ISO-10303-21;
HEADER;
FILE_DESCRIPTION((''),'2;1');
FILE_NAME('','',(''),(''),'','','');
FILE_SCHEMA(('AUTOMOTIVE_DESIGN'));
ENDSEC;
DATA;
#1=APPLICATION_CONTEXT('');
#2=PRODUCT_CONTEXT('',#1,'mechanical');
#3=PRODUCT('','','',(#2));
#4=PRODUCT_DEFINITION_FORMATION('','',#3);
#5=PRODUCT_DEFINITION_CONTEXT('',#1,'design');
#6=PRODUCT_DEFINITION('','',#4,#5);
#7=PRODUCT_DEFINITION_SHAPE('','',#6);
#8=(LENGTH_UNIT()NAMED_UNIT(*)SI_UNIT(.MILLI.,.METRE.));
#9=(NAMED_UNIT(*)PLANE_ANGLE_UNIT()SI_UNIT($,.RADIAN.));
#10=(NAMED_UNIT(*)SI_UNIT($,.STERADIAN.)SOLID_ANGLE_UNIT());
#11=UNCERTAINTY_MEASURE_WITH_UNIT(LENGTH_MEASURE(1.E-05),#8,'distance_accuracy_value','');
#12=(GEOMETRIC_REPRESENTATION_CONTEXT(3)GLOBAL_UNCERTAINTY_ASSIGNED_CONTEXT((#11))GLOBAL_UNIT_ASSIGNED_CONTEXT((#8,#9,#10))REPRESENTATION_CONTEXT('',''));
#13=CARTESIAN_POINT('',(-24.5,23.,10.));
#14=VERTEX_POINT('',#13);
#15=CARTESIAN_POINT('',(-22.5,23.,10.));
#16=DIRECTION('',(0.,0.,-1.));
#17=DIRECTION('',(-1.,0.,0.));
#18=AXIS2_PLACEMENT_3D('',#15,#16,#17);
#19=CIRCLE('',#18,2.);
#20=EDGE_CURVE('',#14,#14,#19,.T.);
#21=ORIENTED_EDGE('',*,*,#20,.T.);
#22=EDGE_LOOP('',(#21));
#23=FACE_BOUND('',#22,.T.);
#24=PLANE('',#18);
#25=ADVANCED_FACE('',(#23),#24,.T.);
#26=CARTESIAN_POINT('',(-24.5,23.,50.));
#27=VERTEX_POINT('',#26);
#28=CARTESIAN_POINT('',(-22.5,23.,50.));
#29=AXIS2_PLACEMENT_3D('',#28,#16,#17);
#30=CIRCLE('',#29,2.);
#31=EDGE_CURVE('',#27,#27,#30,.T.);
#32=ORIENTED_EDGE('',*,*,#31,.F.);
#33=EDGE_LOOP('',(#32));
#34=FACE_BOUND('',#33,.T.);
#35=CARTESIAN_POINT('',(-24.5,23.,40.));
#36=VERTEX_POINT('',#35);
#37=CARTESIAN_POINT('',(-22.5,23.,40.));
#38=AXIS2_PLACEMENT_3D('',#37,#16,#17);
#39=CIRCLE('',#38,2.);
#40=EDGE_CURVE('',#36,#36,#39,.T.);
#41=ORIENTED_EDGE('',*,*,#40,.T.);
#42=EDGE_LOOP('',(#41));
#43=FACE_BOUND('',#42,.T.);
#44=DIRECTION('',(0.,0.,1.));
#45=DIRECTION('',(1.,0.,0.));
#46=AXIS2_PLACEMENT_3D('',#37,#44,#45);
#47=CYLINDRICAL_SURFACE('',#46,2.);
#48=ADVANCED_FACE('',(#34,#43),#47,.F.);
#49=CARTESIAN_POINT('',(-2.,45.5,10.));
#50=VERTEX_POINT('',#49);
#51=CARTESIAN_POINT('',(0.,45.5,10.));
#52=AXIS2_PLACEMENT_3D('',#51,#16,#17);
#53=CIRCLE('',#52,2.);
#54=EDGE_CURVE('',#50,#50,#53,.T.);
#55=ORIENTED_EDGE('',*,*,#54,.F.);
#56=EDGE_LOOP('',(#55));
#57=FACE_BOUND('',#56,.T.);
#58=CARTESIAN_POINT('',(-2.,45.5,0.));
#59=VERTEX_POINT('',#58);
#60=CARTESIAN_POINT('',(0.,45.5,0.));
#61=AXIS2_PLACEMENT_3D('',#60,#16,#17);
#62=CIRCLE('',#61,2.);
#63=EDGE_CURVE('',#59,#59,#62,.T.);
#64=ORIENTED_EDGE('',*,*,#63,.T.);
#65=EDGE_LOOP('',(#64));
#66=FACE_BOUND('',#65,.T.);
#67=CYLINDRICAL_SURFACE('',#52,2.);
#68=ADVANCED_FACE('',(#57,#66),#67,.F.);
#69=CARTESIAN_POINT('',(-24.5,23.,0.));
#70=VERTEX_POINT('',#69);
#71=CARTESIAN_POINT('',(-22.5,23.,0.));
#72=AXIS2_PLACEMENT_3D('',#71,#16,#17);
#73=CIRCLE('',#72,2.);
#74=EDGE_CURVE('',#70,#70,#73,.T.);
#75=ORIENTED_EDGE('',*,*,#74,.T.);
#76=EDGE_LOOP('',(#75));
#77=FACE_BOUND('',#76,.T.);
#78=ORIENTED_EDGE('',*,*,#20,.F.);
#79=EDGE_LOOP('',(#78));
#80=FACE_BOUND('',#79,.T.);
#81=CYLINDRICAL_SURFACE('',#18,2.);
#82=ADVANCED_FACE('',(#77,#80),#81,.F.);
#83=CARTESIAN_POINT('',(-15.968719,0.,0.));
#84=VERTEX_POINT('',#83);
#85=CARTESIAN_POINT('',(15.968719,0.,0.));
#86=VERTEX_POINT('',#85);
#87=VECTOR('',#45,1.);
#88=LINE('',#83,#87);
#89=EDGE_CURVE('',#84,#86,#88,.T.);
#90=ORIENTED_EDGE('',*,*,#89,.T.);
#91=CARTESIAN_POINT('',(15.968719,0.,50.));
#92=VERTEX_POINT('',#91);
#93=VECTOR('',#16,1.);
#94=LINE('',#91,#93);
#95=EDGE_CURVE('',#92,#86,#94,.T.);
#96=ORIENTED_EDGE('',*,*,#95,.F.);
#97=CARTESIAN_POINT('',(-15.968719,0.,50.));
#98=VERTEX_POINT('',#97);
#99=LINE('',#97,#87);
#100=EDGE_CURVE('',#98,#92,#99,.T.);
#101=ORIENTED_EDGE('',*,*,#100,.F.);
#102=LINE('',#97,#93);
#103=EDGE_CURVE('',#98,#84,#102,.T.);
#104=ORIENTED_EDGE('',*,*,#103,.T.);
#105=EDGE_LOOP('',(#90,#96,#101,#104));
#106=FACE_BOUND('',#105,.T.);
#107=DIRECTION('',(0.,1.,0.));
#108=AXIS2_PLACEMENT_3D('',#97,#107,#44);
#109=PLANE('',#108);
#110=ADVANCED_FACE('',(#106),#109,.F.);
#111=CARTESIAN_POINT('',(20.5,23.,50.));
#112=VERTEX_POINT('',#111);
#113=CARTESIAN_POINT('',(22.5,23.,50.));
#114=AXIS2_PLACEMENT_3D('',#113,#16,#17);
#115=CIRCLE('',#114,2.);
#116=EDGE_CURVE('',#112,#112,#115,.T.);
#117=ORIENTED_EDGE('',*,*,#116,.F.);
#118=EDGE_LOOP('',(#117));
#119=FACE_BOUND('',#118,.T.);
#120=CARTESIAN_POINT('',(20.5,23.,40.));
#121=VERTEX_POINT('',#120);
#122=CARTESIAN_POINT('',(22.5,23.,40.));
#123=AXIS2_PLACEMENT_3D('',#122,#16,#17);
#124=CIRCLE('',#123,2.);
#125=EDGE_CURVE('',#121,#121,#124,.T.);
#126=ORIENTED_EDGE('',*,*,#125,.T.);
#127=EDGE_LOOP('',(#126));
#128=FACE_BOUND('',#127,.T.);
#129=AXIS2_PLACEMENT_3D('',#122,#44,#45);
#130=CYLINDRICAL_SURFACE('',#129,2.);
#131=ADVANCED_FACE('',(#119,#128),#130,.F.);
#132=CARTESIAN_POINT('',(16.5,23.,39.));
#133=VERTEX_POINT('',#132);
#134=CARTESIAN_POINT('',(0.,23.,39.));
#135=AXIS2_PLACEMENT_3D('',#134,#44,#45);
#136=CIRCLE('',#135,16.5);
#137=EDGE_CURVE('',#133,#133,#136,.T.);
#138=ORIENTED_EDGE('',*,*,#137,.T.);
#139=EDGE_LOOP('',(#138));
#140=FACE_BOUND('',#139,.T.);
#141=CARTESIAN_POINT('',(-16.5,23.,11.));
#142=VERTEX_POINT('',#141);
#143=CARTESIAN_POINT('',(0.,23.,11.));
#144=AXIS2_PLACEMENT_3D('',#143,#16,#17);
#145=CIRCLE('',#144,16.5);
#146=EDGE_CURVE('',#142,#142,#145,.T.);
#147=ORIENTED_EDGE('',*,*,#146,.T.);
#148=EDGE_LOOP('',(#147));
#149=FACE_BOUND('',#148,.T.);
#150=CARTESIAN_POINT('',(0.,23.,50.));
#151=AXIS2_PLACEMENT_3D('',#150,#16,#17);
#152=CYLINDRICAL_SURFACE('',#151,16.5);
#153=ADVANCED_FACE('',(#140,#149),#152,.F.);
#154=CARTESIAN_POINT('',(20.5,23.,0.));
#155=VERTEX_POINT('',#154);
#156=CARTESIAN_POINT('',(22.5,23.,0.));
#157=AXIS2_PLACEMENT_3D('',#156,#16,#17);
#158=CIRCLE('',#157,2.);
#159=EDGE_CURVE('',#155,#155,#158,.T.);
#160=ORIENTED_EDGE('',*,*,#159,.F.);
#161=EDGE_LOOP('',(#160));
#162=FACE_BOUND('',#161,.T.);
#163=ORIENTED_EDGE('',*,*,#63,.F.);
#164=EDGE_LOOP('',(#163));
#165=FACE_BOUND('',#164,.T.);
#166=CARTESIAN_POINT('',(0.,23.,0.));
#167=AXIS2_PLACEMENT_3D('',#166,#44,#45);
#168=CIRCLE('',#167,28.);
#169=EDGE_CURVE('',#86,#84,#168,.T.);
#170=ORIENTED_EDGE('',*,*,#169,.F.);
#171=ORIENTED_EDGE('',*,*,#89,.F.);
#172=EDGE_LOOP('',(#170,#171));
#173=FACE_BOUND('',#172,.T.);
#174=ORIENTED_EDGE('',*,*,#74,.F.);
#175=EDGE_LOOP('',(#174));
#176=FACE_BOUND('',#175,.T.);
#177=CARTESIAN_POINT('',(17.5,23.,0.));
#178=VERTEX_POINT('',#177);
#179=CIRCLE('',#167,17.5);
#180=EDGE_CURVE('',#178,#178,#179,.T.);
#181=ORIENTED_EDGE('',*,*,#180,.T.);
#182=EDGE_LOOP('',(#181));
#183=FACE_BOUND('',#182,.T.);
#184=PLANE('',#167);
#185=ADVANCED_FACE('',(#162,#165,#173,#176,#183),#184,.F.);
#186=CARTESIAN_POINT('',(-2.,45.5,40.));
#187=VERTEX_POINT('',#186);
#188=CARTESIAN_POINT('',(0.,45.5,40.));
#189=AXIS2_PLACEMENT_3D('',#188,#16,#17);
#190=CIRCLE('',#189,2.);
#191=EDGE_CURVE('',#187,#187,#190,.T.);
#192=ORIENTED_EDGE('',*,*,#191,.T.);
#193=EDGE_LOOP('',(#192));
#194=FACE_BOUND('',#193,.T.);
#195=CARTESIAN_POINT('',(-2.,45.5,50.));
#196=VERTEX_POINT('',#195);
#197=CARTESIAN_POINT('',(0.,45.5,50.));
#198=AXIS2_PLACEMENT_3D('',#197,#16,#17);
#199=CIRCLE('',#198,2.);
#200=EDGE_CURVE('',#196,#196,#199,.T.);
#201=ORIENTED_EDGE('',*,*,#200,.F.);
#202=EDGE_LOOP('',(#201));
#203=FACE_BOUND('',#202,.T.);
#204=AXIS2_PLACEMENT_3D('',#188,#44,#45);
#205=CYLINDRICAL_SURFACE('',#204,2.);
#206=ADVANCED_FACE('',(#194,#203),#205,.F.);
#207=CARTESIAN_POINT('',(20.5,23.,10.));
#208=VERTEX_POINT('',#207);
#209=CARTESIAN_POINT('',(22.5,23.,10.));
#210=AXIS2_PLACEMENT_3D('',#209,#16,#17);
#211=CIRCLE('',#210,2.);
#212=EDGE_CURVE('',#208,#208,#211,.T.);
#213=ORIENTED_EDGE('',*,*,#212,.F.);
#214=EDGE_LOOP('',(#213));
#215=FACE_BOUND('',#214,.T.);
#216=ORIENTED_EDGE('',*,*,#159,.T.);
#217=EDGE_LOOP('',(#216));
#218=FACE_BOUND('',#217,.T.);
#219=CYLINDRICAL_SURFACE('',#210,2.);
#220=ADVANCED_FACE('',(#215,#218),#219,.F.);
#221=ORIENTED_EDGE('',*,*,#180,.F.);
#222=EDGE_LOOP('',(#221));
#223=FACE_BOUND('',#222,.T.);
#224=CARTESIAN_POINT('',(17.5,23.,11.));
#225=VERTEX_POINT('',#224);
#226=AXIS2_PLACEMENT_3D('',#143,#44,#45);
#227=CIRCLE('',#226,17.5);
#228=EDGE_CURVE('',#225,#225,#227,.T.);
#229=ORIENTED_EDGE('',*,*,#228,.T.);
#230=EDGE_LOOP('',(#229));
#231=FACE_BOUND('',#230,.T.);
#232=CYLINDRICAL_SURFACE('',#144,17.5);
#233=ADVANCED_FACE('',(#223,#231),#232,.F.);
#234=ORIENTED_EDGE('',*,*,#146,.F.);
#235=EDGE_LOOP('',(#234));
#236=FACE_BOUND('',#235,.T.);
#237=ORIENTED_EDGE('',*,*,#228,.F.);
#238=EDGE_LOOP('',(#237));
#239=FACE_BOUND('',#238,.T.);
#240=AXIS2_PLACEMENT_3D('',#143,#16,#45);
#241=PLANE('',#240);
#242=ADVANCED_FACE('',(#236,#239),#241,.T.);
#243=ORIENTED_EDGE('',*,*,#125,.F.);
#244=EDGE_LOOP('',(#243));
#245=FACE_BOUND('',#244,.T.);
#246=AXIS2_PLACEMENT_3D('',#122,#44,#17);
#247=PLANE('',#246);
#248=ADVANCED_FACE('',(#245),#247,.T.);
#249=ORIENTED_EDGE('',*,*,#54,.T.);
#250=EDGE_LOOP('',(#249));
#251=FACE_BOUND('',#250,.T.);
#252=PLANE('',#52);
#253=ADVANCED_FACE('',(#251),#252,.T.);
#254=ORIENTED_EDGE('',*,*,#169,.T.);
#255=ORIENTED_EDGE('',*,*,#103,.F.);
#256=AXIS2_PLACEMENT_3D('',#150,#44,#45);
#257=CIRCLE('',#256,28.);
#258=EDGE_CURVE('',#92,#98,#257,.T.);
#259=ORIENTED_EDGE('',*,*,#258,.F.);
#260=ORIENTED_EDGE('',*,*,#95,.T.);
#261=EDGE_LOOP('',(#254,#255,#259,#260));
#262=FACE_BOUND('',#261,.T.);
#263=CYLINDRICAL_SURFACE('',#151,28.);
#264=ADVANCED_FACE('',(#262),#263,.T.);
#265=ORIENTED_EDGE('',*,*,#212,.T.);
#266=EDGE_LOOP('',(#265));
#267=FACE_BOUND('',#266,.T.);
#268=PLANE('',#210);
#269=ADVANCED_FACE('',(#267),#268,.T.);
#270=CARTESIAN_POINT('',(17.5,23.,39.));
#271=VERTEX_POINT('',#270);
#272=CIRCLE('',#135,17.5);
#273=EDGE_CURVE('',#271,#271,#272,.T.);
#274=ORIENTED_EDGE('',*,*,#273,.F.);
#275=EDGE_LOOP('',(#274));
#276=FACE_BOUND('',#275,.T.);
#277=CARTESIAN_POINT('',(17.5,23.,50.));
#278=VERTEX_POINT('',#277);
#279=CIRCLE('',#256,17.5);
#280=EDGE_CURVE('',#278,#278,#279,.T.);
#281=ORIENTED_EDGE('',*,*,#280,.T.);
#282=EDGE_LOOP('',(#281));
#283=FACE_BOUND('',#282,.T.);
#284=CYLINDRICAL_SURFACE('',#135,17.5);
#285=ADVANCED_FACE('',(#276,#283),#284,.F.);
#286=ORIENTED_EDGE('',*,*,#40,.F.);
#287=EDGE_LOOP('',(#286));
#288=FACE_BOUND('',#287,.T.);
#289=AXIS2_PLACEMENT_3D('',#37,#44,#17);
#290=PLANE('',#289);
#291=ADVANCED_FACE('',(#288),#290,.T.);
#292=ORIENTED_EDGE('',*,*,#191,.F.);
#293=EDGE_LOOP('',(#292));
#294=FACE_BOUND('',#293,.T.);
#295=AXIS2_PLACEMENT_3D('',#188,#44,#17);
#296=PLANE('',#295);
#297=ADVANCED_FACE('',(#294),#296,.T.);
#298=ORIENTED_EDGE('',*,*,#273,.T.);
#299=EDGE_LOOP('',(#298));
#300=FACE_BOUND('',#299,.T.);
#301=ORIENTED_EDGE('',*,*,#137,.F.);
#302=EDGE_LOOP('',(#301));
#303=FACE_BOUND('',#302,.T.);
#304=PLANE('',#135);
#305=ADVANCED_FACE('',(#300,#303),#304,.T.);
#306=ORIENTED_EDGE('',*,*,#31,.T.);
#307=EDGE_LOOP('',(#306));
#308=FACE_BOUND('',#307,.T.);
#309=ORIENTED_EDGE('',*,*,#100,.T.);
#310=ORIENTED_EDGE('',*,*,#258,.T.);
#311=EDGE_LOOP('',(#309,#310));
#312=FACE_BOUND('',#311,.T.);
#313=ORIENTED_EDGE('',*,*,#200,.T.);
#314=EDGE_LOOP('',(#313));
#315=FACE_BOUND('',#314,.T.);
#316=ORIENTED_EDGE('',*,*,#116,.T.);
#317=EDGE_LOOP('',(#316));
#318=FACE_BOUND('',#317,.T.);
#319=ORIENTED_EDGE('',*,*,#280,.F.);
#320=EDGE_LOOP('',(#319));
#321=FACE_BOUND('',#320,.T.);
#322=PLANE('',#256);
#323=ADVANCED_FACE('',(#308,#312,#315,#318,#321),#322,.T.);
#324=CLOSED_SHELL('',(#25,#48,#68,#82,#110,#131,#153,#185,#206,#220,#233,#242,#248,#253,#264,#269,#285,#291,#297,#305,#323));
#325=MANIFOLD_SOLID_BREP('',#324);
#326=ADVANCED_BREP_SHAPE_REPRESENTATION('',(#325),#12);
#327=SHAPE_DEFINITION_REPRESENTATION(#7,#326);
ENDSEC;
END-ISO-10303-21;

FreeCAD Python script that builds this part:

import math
import FreeCAD as App
import Part
import Sketcher

doc = App.newDocument("Part")
params = doc.addObject("Spreadsheet::Sheet", "Params")
for row, (alias, value) in enumerate([
    ("sketch1_diameter", "33 mm"),
    ("sketch1_radius", "28 mm"),
    ("pad1_length", "50 mm"),
    ("sketch2_diameter", "35 mm"),
    ("pocket1_length", "11 mm"),
    ("sketch3_diameter", "4 mm"),
    ("pocket2_length", "10 mm"),
], start=1):
    params.set(f"A{row}", alias)
    params.set(f"B{row}", "=" + value)
    params.setAlias(f"B{row}", alias)

body = doc.addObject("PartDesign::Body", "Body")

# Sketch on XY plane
sketch1 = doc.addObject("Sketcher::SketchObject", "Sketch")
body.addObject(sketch1)
sketch1.AttachmentSupport = (doc.XY_Plane, [""])
sketch1.MapMode = "FlatFace"
sketch1.addGeometry([
    Part.LineSegment(App.Vector(-15.968719, 0, 0), App.Vector(15.968719, 0, 0)),
    Part.ArcOfCircle(Part.Circle(App.Vector(0, 23, 0), App.Vector(0, 0, 1), 28), math.radians(-55.228056), math.radians(235.228056)),
    Part.Circle(App.Vector(0, 23, 0), App.Vector(0, 0, 1), 16.5),
], False)
sketch1.addConstraint([
    Sketcher.Constraint("Coincident", 0, 1, 1, 2),
    Sketcher.Constraint("Coincident", 1, 1, 0, 2),
    Sketcher.Constraint("Horizontal", 0),
    Sketcher.Constraint("Coincident", 2, 3, 1, 3),
    Sketcher.Constraint("Symmetric", 0, 1, 1, 1, -1, 1),
    Sketcher.Constraint("Diameter", 2, 33.0),
    Sketcher.Constraint("Radius", 1, 28.0),
    Sketcher.Constraint("DistanceY", -1, 1, 1, 3, 23.0),
])
sketch1.setExpression("Constraints[5]", "Params.sketch1_diameter")
sketch1.setExpression("Constraints[6]", "Params.sketch1_radius")
pad1 = doc.addObject("PartDesign::Pad", "Pad")
body.addObject(pad1)
pad1.Profile = sketch1
pad1.setExpression("Length", "Params.pad1_length")

# Sketch on XY plane
sketch2 = doc.addObject("Sketcher::SketchObject", "Sketch001")
body.addObject(sketch2)
sketch2.AttachmentSupport = (doc.XY_Plane, [""])
sketch2.MapMode = "FlatFace"
sketch2.AttachmentOffset = App.Placement(App.Vector(0, 0, 50), App.Rotation())
sketch2.addGeometry(Part.Circle(App.Vector(0, 23, 0), App.Vector(0, 0, 1), 17.5), False)
sketch2.addConstraint([
    Sketcher.Constraint("PointOnObject", 0, 3, -2),
    Sketcher.Constraint("Diameter", 0, 35.0),
    Sketcher.Constraint("DistanceY", -1, 1, 0, 3, 23.0),
])
sketch2.setExpression("Constraints[1]", "Params.sketch2_diameter")
pocket1 = doc.addObject("PartDesign::Pocket", "Pocket")
body.addObject(pocket1)
pocket1.Profile = sketch2
pocket1.setExpression("Length", "Params.pocket1_length")
doc.recompute()

datumplane = doc.addObject("PartDesign::Plane", "DatumPlane")
body.addObject(datumplane)
datumplane.AttachmentSupport = (doc.XY_Plane, [""])
datumplane.MapMode = "FlatFace"
datumplane.AttachmentOffset = App.Placement(App.Vector(0, 0, 25), App.Rotation())
mirrored = doc.addObject("PartDesign::Mirrored", "Mirrored")
body.addObject(mirrored)
mirrored.Originals = [pocket1]
mirrored.MirrorPlane = (datumplane, [""])
body.Tip = mirrored

# Sketch on XY plane
sketch3 = doc.addObject("Sketcher::SketchObject", "Sketch002")
body.addObject(sketch3)
sketch3.AttachmentSupport = (doc.XY_Plane, [""])
sketch3.MapMode = "FlatFace"
sketch3.addGeometry([
    Part.Circle(App.Vector(0, 45.5, 0), App.Vector(0, 0, 1), 2),
    Part.Circle(App.Vector(22.5, 23, 0), App.Vector(0, 0, 1), 2),
    Part.Circle(App.Vector(-22.5, 23, 0), App.Vector(0, 0, 1), 2),
], False)
sketch3.addConstraint([
    Sketcher.Constraint("Equal", 0, 1),
    Sketcher.Constraint("Equal", 1, 2),
    Sketcher.Constraint("Symmetric", 1, 3, 2, 3, -2),
    Sketcher.Constraint("PointOnObject", 0, 3, -2),
    Sketcher.Constraint("Diameter", 0, 4.0),
    Sketcher.Constraint("DistanceY", -1, 1, 1, 3, 23.0),
    Sketcher.Constraint("DistanceX", 2, 3, 1, 3, 45.0),
    Sketcher.Constraint("DistanceY", -1, 1, 0, 3, 45.5),
])
sketch3.setExpression("Constraints[4]", "Params.sketch3_diameter")
pocket2 = doc.addObject("PartDesign::Pocket", "Pocket001")
body.addObject(pocket2)
pocket2.Profile = sketch3
pocket2.setExpression("Length", "Params.pocket2_length")
pocket2.Reversed = True
doc.recompute()

datumplane2 = doc.addObject("PartDesign::Plane", "DatumPlane001")
body.addObject(datumplane2)
datumplane2.AttachmentSupport = (doc.XY_Plane, [""])
datumplane2.MapMode = "FlatFace"
datumplane2.AttachmentOffset = App.Placement(App.Vector(0, 0, 25), App.Rotation())
mirrored2 = doc.addObject("PartDesign::Mirrored", "Mirrored001")
body.addObject(mirrored2)
mirrored2.Originals = [pocket2]
mirrored2.MirrorPlane = (datumplane2, [""])
body.Tip = mirrored2

doc.recompute()
